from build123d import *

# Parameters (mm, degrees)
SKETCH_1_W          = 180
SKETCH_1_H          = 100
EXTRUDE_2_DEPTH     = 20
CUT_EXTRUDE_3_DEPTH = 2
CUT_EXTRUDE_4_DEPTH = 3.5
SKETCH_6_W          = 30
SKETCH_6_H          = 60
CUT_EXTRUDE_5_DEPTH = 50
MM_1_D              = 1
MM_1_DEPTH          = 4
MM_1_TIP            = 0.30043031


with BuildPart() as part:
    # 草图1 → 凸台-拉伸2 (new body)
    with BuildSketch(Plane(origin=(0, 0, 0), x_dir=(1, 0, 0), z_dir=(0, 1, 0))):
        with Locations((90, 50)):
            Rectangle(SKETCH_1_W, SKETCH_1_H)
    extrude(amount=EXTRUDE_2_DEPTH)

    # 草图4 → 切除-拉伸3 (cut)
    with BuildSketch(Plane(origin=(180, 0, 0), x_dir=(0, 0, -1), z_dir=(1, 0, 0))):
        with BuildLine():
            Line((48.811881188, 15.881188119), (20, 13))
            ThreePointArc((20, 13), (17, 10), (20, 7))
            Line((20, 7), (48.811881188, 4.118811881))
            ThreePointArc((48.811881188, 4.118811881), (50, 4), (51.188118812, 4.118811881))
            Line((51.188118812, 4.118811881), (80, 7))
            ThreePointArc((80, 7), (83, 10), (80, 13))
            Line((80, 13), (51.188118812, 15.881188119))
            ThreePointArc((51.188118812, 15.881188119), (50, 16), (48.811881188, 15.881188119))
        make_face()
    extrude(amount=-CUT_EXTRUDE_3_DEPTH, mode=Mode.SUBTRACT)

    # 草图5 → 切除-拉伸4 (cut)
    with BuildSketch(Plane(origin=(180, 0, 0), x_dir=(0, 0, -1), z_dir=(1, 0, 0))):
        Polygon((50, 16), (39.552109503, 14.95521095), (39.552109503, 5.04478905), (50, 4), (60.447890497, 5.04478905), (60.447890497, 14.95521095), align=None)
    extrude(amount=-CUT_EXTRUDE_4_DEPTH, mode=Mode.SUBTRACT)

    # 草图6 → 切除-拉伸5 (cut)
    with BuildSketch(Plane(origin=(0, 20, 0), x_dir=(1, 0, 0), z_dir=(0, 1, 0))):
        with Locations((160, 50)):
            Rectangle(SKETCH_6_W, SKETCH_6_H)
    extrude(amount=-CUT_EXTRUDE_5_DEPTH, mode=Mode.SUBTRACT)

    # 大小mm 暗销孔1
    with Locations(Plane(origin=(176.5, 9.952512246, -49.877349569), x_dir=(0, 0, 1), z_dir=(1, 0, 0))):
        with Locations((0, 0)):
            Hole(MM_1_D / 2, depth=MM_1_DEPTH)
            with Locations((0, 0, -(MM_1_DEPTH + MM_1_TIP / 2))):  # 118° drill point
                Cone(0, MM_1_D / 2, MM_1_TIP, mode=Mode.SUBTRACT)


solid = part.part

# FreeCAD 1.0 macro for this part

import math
import FreeCAD as App
import Part
import Sketcher

V = App.Vector
Q = App.Units.Quantity


def add_polygon(sketch, points):
    """Adds a closed chain of lines whose ends are joined by coincident constraints."""
    first, n = sketch.GeometryCount, len(points)
    for a, b in zip(points, points[1:] + points[:1]):
        sketch.addGeometry(Part.LineSegment(App.Vector(*a, 0), App.Vector(*b, 0)), False)
    for i in range(n):
        sketch.addConstraint(Sketcher.Constraint("Coincident", first + i, 2, first + (i + 1) % n, 1))

doc = App.newDocument("Part")
body = doc.addObject("PartDesign::Body", "Body")

# Sketch on XZ plane
sketch1 = doc.addObject("Sketcher::SketchObject", "Sketch")
body.addObject(sketch1)
sketch1.AttachmentSupport = (doc.XZ_Plane, [""])
sketch1.MapMode = "FlatFace"
add_polygon(sketch1, [(0, -100), (0, 0), (180, 0), (180, -100)])  # lines 0-3
sketch1.addConstraint(Sketcher.Constraint("Vertical", 0))
sketch1.addConstraint(Sketcher.Constraint("Horizontal", 1))
sketch1.addConstraint(Sketcher.Constraint("Vertical", 2))
sketch1.addConstraint(Sketcher.Constraint("Horizontal", 3))
sketch1.addConstraint(Sketcher.Constraint("Coincident", 0, 2, -1, 1))
sketch1.addConstraint(Sketcher.Constraint("DistanceX", 1, 1, 1, 2, Q("180 mm")))
sketch1.addConstraint(Sketcher.Constraint("DistanceY", 0, 1, 0, 2, Q("100 mm")))
pad1 = doc.addObject("PartDesign::Pad", "Pad")
body.addObject(pad1)
pad1.Profile = sketch1
pad1.Length = 20
pad1.Reversed = True

# Sketch on YZ plane
sketch2 = doc.addObject("Sketcher::SketchObject", "Sketch001")
body.addObject(sketch2)
sketch2.AttachmentSupport = (doc.YZ_Plane, [""])
sketch2.MapMode = "FlatFace"
sketch2.AttachmentOffset = App.Placement(V(0, 0, 180), App.Rotation())
sketch2.addGeometry(Part.LineSegment(V(15.9, -48.8, 0), V(13, -20, 0)), False)
sketch2.addGeometry(Part.ArcOfCircle(Part.Circle(V(10, -20, 0), V(0, 0, 1), 3), math.radians(0), math.radians(180)), False)
sketch2.addGeometry(Part.LineSegment(V(7, -20, 0), V(4.1, -48.8, 0)), False)
sketch2.addGeometry(Part.ArcOfCircle(Part.Circle(V(10, -50, 0), V(0, 0, 1), 6), math.radians(169), math.radians(191)), False)
sketch2.addGeometry(Part.LineSegment(V(4.1, -51.2, 0), V(7, -80, 0)), False)
sketch2.addGeometry(Part.ArcOfCircle(Part.Circle(V(10, -80, 0), V(0, 0, 1), 3), math.radians(180), math.radians(360)), False)
sketch2.addGeometry(Part.LineSegment(V(13, -80, 0), V(15.9, -51.2, 0)), False)
sketch2.addGeometry(Part.ArcOfCircle(Part.Circle(V(10, -50, 0), V(0, 0, 1), 6), math.radians(-11), math.radians(11)), False)
sketch2.addConstraint(Sketcher.Constraint("Coincident", 0, 2, 1, 1))
sketch2.addConstraint(Sketcher.Constraint("Coincident", 1, 2, 2, 1))
sketch2.addConstraint(Sketcher.Constraint("Coincident", 2, 2, 3, 1))
sketch2.addConstraint(Sketcher.Constraint("Coincident", 3, 2, 4, 1))
sketch2.addConstraint(Sketcher.Constraint("Coincident", 4, 2, 5, 1))
sketch2.addConstraint(Sketcher.Constraint("Coincident", 5, 2, 6, 1))
sketch2.addConstraint(Sketcher.Constraint("Coincident", 6, 2, 7, 1))
sketch2.addConstraint(Sketcher.Constraint("Coincident", 7, 2, 0, 1))
sketch2.addConstraint(Sketcher.Constraint("Coincident", 7, 3, 3, 3))
sketch2.addConstraint(Sketcher.Constraint("Equal", 1, 5))
sketch2.addConstraint(Sketcher.Constraint("Equal", 3, 7))
sketch2.addConstraint(Sketcher.Constraint("Parallel", 0, 4))
sketch2.addConstraint(Sketcher.Constraint("Parallel", 2, 6))
sketch2.addConstraint(Sketcher.Constraint("Horizontal", 1, 3, 0, 2))
sketch2.addConstraint(Sketcher.Constraint("Horizontal", 0, 2, 1, 2))
sketch2.addConstraint(Sketcher.Constraint("Horizontal", 5, 3, 4, 2))
sketch2.addConstraint(Sketcher.Constraint("Horizontal", 4, 2, 5, 2))
sketch2.addConstraint(Sketcher.Constraint("Horizontal", 3, 2, 6, 2))
sketch2.addConstraint(Sketcher.Constraint("Horizontal", 2, 2, 7, 2))
sketch2.addConstraint(Sketcher.Constraint("Vertical", 1, 3, 3, 3))
sketch2.addConstraint(Sketcher.Constraint("Vertical", 2, 2, 3, 2))
sketch2.addConstraint(Sketcher.Constraint("Radius", 1, Q("3 mm")))
sketch2.addConstraint(Sketcher.Constraint("Radius", 3, Q("6 mm")))
sketch2.addConstraint(Sketcher.Constraint("DistanceX", -1, 1, 1, 3, Q("10 mm")))
sketch2.addConstraint(Sketcher.Constraint("DistanceY", 1, 3, -1, 1, Q("20 mm")))
sketch2.addConstraint(Sketcher.Constraint("DistanceY", 3, 3, -1, 1, Q("50 mm")))
sketch2.addConstraint(Sketcher.Constraint("DistanceX", -1, 1, 2, 2, Q("4.118812 mm")))
pocket1 = doc.addObject("PartDesign::Pocket", "Pocket")
body.addObject(pocket1)
pocket1.Profile = sketch2
pocket1.Length = 2

# Sketch on YZ plane
sketch3 = doc.addObject("Sketcher::SketchObject", "Sketch002")
body.addObject(sketch3)
sketch3.AttachmentSupport = (doc.YZ_Plane, [""])
sketch3.MapMode = "FlatFace"
sketch3.AttachmentOffset = App.Placement(V(0, 0, 180), App.Rotation())
add_polygon(sketch3, [(16, -50), (15, -40), (5, -40), (4, -50), (5, -60), (15, -60)])  # lines 0-5
sketch3.addConstraint(Sketcher.Constraint("Horizontal", 1))
sketch3.addConstraint(Sketcher.Constraint("Horizontal", 4))
sketch3.addConstraint(Sketcher.Constraint("Parallel", 0, 3))
sketch3.addConstraint(Sketcher.Constraint("Parallel", 2, 5))
sketch3.addConstraint(Sketcher.Constraint("Horizontal", 2, 2, 5, 2))
sketch3.addConstraint(Sketcher.Constraint("Vertical", 1, 2, 3, 2))
sketch3.addConstraint(Sketcher.Constraint("Vertical", 0, 2, 4, 2))
sketch3.addConstraint(Sketcher.Constraint("DistanceX", -1, 1, 2, 2, Q("4 mm")))
sketch3.addConstraint(Sketcher.Constraint("DistanceY", 2, 2, -1, 1, Q("50 mm")))
sketch3.addConstraint(Sketcher.Constraint("DistanceX", -1, 1, 5, 2, Q("16 mm")))
sketch3.addConstraint(Sketcher.Constraint("Distance", 0, Q("10.5 mm")))
sketch3.addConstraint(Sketcher.Constraint("DistanceX", 1, 2, 1, 1, Q("9.910422 mm")))
pocket2 = doc.addObject("PartDesign::Pocket", "Pocket001")
body.addObject(pocket2)
pocket2.Profile = sketch3
pocket2.Length = 3.5

# Sketch on XZ plane
sketch4 = doc.addObject("Sketcher::SketchObject", "Sketch003")
body.addObject(sketch4)
sketch4.AttachmentSupport = (doc.XZ_Plane, [""])
sketch4.MapMode = "FlatFace"
sketch4.AttachmentOffset = App.Placement(V(0, 0, -20), App.Rotation())
add_polygon(sketch4, [(145, -80), (145, -20), (175, -20), (175, -80)])  # lines 0-3
sketch4.addConstraint(Sketcher.Constraint("Vertical", 0))
sketch4.addConstraint(Sketcher.Constraint("Horizontal", 1))
sketch4.addConstraint(Sketcher.Constraint("Vertical", 2))
sketch4.addConstraint(Sketcher.Constraint("Horizontal", 3))
sketch4.addConstraint(Sketcher.Constraint("DistanceX", 1, 1, 1, 2, Q("30 mm")))
sketch4.addConstraint(Sketcher.Constraint("DistanceY", 0, 1, 0, 2, Q("60 mm")))
sketch4.addConstraint(Sketcher.Constraint("DistanceX", -1, 1, 0, 2, Q("145 mm")))
sketch4.addConstraint(Sketcher.Constraint("DistanceY", 0, 2, -1, 1, Q("20 mm")))
pocket3 = doc.addObject("PartDesign::Pocket", "Pocket002")
body.addObject(pocket3)
pocket3.Profile = sketch4
pocket3.Length = 50
pocket3.Reversed = True

# Sketch on YZ plane
sketch5 = doc.addObject("Sketcher::SketchObject", "Sketch004")
body.addObject(sketch5)
sketch5.AttachmentSupport = (doc.YZ_Plane, [""])
sketch5.MapMode = "FlatFace"
sketch5.AttachmentOffset = App.Placement(V(0, 0, 176.5), App.Rotation())
sketch5.addGeometry(Part.Circle(V(10, -49.9, 0), V(0, 0, 1), 0.5), False)
sketch5.addConstraint(Sketcher.Constraint("Diameter", 0, Q("1 mm")))
sketch5.addConstraint(Sketcher.Constraint("DistanceY", 0, 3, -1, 1, Q("49.87735 mm")))
sketch5.addConstraint(Sketcher.Constraint("DistanceX", -1, 1, 0, 3, Q("9.952512 mm")))
doc.recompute()
hole = doc.addObject("PartDesign::Hole", "Hole")
body.addObject(hole)
hole.Profile = sketch5
hole.ThreadType = "None"
hole.Diameter = 1
hole.DepthType = "Dimension"
hole.Depth = 4
hole.DrillPoint = "Angled"
hole.DrillPointAngle = 118

doc.recompute()
